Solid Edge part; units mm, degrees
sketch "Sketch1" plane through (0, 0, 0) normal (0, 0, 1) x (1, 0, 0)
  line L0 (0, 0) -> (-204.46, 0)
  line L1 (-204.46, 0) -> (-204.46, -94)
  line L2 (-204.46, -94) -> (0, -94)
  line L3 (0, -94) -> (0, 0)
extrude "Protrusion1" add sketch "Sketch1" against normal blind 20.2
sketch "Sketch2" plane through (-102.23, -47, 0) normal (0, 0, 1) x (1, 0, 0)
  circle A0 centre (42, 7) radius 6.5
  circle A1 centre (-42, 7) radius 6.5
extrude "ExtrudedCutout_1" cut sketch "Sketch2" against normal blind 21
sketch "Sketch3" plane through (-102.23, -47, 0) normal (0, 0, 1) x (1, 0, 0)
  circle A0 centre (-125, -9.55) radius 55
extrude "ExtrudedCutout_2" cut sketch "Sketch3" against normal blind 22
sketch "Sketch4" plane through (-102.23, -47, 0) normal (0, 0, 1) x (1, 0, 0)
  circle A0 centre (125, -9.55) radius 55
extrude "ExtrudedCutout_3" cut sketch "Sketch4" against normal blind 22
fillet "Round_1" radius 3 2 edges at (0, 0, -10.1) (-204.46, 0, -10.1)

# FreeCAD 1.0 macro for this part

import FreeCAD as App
import Part
import Sketcher
from FreeCAD import Vector
Q = App.Units.Quantity


def edges_at(feature, points):
    """Names of the edges that pass closest to the given points."""
    edges = feature.Shape.Edges
    near = lambda p: min(range(len(edges)), key=lambda i: edges[i].distToShape(Part.Vertex(*p))[0])
    return sorted({f"Edge{near(p) + 1}" for p in points})


def add_polygon(sketch, points):
    """Adds a closed chain of lines whose ends are joined by coincident constraints."""
    first, n = sketch.GeometryCount, len(points)
    for a, b in zip(points, points[1:] + points[:1]):
        sketch.addGeometry(Part.LineSegment(App.Vector(*a, 0), App.Vector(*b, 0)), False)
    for i in range(n):
        sketch.addConstraint(Sketcher.Constraint("Coincident", first + i, 2, first + (i + 1) % n, 1))

doc = App.newDocument("Part")
body = doc.addObject("PartDesign::Body", "Body")

sketch1 = doc.addObject("Sketcher::SketchObject", "Sketch")
body.addObject(sketch1)
sketch1.AttachmentSupport = (doc.XY_Plane, [""])
sketch1.MapMode = "FlatFace"
add_polygon(sketch1, [(0, -94), (0, 0), (-204.46, 0), (-204.46, -94)])
sketch1.addConstraint([
    Sketcher.Constraint("Vertical", 0),
    Sketcher.Constraint("Horizontal", 1),
    Sketcher.Constraint("Vertical", 2),
    Sketcher.Constraint("Horizontal", 3),
    Sketcher.Constraint("Coincident", 0, 2, -1, 1),
    Sketcher.Constraint("DistanceY", 0, 1, 0, 2, Q("94 mm")),
    Sketcher.Constraint("DistanceX", 1, 2, 1, 1, Q("204.46 mm")),
])
pad1 = doc.addObject("PartDesign::Pad", "Pad")
body.addObject(pad1)
pad1.Profile = sketch1
pad1.Length = 20.2
pad1.Reversed = True

sketch2 = doc.addObject("Sketcher::SketchObject", "Sketch001")
body.addObject(sketch2)
sketch2.AttachmentSupport = (doc.XY_Plane, [""])
sketch2.MapMode = "FlatFace"
sketch2.addGeometry([
    Part.Circle(Vector(-60.23, -40, 0), Vector(0, 0, 1), 6.5),
    Part.Circle(Vector(-144.23, -40, 0), Vector(0, 0, 1), 6.5),
], False)
sketch2.addConstraint([
    Sketcher.Constraint("Equal", 0, 1),
    Sketcher.Constraint("Horizontal", 0, 3, 1, 3),
    Sketcher.Constraint("Diameter", 0, Q("13 mm")),
    Sketcher.Constraint("DistanceY", 0, 3, -1, 1, Q("40 mm")),
    Sketcher.Constraint("DistanceX", 1, 3, 0, 3, Q("84 mm")),
    Sketcher.Constraint("DistanceX", 0, 3, -1, 1, Q("60.23 mm")),
])
pocket1 = doc.addObject("PartDesign::Pocket", "Pocket")
body.addObject(pocket1)
pocket1.Profile = sketch2
pocket1.Length = 21

sketch3 = doc.addObject("Sketcher::SketchObject", "Sketch002")
body.addObject(sketch3)
sketch3.AttachmentSupport = (doc.XY_Plane, [""])
sketch3.MapMode = "FlatFace"
sketch3.addGeometry(Part.Circle(Vector(-227.23, -56.55, 0), Vector(0, 0, 1), 55), False)
sketch3.addConstraint([
    Sketcher.Constraint("Diameter", 0, Q("110 mm")),
    Sketcher.Constraint("DistanceX", 0, 3, -1, 1, Q("227.23 mm")),
    Sketcher.Constraint("DistanceY", 0, 3, -1, 1, Q("56.55 mm")),
])
pocket2 = doc.addObject("PartDesign::Pocket", "Pocket001")
body.addObject(pocket2)
pocket2.Profile = sketch3
pocket2.Length = 22

sketch4 = doc.addObject("Sketcher::SketchObject", "Sketch003")
body.addObject(sketch4)
sketch4.AttachmentSupport = (doc.XY_Plane, [""])
sketch4.MapMode = "FlatFace"
sketch4.addGeometry(Part.Circle(Vector(22.77, -56.55, 0), Vector(0, 0, 1), 55), False)
sketch4.addConstraint([
    Sketcher.Constraint("Diameter", 0, Q("110 mm")),
    Sketcher.Constraint("DistanceX", -1, 1, 0, 3, Q("22.77 mm")),
    Sketcher.Constraint("DistanceY", 0, 3, -1, 1, Q("56.55 mm")),
])
pocket3 = doc.addObject("PartDesign::Pocket", "Pocket002")
body.addObject(pocket3)
pocket3.Profile = sketch4
pocket3.Length = 22
doc.recompute()

fillet = doc.addObject("PartDesign::Fillet", "Fillet")
body.addObject(fillet)
fillet.Base = (pocket3, edges_at(pocket3, [(0, 0, -10.1), (-204.46, 0, -10.1)]))
fillet.Radius = 3

doc.recompute()
